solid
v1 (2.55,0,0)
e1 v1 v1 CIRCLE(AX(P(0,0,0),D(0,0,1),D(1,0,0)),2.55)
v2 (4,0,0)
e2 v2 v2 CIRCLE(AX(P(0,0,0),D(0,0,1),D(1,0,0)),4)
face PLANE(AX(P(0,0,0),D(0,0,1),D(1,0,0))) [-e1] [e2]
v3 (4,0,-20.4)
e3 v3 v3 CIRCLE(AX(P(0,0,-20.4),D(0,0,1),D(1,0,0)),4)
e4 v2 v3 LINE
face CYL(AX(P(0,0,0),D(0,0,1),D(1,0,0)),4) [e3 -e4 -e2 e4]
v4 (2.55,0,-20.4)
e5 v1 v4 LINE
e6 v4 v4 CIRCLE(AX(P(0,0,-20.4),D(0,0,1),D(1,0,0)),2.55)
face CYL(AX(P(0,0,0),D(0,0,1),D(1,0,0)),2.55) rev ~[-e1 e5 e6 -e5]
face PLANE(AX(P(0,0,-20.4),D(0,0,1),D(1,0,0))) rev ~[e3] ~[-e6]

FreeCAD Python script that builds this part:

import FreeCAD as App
import Part
import Sketcher

doc = App.newDocument("Part")
body = doc.addObject("PartDesign::Body", "Body")

sketch1 = body.newObject("Sketcher::SketchObject", "Sketch")
sketch1.AttachmentSupport = (doc.getObject("XY_Plane"), [""])
sketch1.MapMode = "FlatFace"
sketch1.addGeometry(Part.Circle(App.Vector(0, 0, 0), App.Vector(0, 0, 1), 4), False)
sketch1.addGeometry(Part.Circle(App.Vector(0, 0, 0), App.Vector(0, 0, 1), 2.55), False)
sketch1.addConstraint(Sketcher.Constraint("Coincident", 0, 3, -1, 1))
sketch1.addConstraint(Sketcher.Constraint("Coincident", 1, 3, -1, 1))
sketch1.addConstraint(Sketcher.Constraint("Diameter", 0, 8.0))
sketch1.addConstraint(Sketcher.Constraint("Diameter", 1, 5.1))
pad1 = body.newObject("PartDesign::Pad", "Pad")
pad1.Profile = sketch1
pad1.Length = 20.4
pad1.Reversed = True

doc.recompute()
